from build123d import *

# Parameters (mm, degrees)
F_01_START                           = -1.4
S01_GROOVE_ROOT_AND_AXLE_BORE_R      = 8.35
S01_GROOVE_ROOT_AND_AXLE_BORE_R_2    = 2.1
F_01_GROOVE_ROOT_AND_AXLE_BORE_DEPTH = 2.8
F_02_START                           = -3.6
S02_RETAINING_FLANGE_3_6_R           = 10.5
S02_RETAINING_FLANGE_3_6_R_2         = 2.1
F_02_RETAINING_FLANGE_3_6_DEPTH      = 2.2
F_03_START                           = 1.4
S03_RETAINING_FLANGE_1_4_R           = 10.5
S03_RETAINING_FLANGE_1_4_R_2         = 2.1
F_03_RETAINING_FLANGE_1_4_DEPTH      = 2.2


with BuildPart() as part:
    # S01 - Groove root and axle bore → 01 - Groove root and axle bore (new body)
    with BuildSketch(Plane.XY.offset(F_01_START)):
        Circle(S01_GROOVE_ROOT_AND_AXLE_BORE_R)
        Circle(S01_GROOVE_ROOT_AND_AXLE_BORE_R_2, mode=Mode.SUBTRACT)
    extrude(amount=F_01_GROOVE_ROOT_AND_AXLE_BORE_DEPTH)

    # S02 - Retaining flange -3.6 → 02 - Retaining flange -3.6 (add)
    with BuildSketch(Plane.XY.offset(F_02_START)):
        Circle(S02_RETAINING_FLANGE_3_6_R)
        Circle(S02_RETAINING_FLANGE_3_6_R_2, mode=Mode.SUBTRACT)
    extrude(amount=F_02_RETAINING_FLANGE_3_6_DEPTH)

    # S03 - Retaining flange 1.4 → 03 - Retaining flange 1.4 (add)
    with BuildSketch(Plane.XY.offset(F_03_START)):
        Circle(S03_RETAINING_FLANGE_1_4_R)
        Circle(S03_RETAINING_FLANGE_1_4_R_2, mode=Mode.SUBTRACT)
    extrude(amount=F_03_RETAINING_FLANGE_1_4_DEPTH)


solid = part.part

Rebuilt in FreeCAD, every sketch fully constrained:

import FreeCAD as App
import Part
import Sketcher

V = App.Vector

doc = App.newDocument("Part")
body = doc.addObject("PartDesign::Body", "Body")

# Sketch on XY plane
sketch1 = body.newObject("Sketcher::SketchObject", "Sketch")
sketch1.AttachmentSupport = (doc.getObject("XY_Plane"), [""])
sketch1.MapMode = "FlatFace"
sketch1.AttachmentOffset = App.Placement(V(0, 0, -1.4), App.Rotation())
sketch1.addGeometry(Part.Circle(V(0, 0, 0), V(0, 0, 1), 8.35), False)
sketch1.addGeometry(Part.Circle(V(0, 0, 0), V(0, 0, 1), 2.1), False)
sketch1.addConstraint(Sketcher.Constraint("Coincident", 0, 3, -1, 1))
sketch1.addConstraint(Sketcher.Constraint("Coincident", 1, 3, -1, 1))
sketch1.addConstraint(Sketcher.Constraint("Diameter", 0, 16.7))
sketch1.addConstraint(Sketcher.Constraint("Diameter", 1, 4.2))
pad1 = body.newObject("PartDesign::Pad", "Pad")
pad1.Profile = sketch1
pad1.Length = 2.8

# Sketch on XY plane
sketch2 = body.newObject("Sketcher::SketchObject", "Sketch001")
sketch2.AttachmentSupport = (doc.getObject("XY_Plane"), [""])
sketch2.MapMode = "FlatFace"
sketch2.AttachmentOffset = App.Placement(V(0, 0, -3.6), App.Rotation())
sketch2.addGeometry(Part.Circle(V(0, 0, 0), V(0, 0, 1), 10.5), False)
sketch2.addGeometry(Part.Circle(V(0, 0, 0), V(0, 0, 1), 2.1), False)
sketch2.addConstraint(Sketcher.Constraint("Coincident", 0, 3, -1, 1))
sketch2.addConstraint(Sketcher.Constraint("Coincident", 1, 3, -1, 1))
sketch2.addConstraint(Sketcher.Constraint("Diameter", 0, 21.0))
sketch2.addConstraint(Sketcher.Constraint("Diameter", 1, 4.2))
pad2 = body.newObject("PartDesign::Pad", "Pad001")
pad2.Profile = sketch2
pad2.Length = 2.2

# Sketch on XY plane
sketch3 = body.newObject("Sketcher::SketchObject", "Sketch002")
sketch3.AttachmentSupport = (doc.getObject("XY_Plane"), [""])
sketch3.MapMode = "FlatFace"
sketch3.AttachmentOffset = App.Placement(V(0, 0, 1.4), App.Rotation())
sketch3.addGeometry(Part.Circle(V(0, 0, 0), V(0, 0, 1), 10.5), False)
sketch3.addGeometry(Part.Circle(V(0, 0, 0), V(0, 0, 1), 2.1), False)
sketch3.addConstraint(Sketcher.Constraint("Coincident", 0, 3, -1, 1))
sketch3.addConstraint(Sketcher.Constraint("Coincident", 1, 3, -1, 1))
sketch3.addConstraint(Sketcher.Constraint("Diameter", 0, 21.0))
sketch3.addConstraint(Sketcher.Constraint("Diameter", 1, 4.2))
pad3 = body.newObject("PartDesign::Pad", "Pad002")
pad3.Profile = sketch3
pad3.Length = 2.2

doc.recompute()
